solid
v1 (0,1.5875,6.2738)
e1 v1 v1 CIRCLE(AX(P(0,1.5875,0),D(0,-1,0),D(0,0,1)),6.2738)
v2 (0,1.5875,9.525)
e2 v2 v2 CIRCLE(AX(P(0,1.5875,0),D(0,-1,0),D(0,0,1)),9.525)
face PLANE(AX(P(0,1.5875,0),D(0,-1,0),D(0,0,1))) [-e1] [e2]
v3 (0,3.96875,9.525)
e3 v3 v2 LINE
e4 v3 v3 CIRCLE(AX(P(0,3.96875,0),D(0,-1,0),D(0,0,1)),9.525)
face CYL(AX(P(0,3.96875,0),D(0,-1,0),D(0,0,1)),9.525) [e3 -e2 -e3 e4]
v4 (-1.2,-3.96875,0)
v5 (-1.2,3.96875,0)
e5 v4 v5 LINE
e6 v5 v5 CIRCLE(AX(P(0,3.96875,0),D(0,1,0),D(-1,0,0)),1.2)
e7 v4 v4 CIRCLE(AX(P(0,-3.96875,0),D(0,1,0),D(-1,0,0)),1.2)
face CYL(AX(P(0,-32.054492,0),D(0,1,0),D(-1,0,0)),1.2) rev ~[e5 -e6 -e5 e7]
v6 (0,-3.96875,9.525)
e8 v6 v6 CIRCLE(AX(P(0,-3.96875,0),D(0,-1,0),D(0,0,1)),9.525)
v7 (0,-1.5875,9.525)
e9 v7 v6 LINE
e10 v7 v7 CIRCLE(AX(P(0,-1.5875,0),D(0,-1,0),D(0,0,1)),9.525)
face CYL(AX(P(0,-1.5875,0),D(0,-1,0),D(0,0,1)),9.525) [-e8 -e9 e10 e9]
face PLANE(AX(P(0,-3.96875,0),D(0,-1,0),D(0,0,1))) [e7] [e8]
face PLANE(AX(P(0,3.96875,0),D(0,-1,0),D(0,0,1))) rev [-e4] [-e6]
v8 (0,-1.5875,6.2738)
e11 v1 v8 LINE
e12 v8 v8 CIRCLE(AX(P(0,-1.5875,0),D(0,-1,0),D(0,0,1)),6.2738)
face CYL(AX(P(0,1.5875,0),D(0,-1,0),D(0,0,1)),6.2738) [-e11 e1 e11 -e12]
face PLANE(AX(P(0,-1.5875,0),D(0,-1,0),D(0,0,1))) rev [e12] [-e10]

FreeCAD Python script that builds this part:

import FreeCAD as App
import Part
import Sketcher
Q = App.Units.Quantity

doc = App.newDocument("Part")
body = doc.addObject("PartDesign::Body", "Body")

sketch1 = body.newObject("Sketcher::SketchObject", "Sketch")
sketch1.AttachmentSupport = (doc.getObject("YZ_Plane"), [""])
sketch1.MapMode = "FlatFace"
sketch1.addGeometry(Part.LineSegment(App.Vector(-4, 0, 0), App.Vector(4, 0, 0)), False)
sketch1.addGeometry(Part.LineSegment(App.Vector(4, 0, 0), App.Vector(4, 9.5, 0)), False)
sketch1.addGeometry(Part.LineSegment(App.Vector(4, 9.5, 0), App.Vector(1.6, 9.5, 0)), False)
sketch1.addGeometry(Part.LineSegment(App.Vector(1.6, 9.5, 0), App.Vector(1.6, 6.3, 0)), False)
sketch1.addGeometry(Part.LineSegment(App.Vector(1.6, 6.3, 0), App.Vector(-1.6, 6.3, 0)), False)
sketch1.addGeometry(Part.LineSegment(App.Vector(-1.6, 6.3, 0), App.Vector(-1.6, 9.5, 0)), False)
sketch1.addGeometry(Part.LineSegment(App.Vector(-1.6, 9.5, 0), App.Vector(-4, 9.5, 0)), False)
sketch1.addGeometry(Part.LineSegment(App.Vector(-4, 9.5, 0), App.Vector(-4, 0, 0)), False)
sketch1.addConstraint(Sketcher.Constraint("Coincident", 0, 2, 1, 1))
sketch1.addConstraint(Sketcher.Constraint("Coincident", 1, 2, 2, 1))
sketch1.addConstraint(Sketcher.Constraint("Coincident", 2, 2, 3, 1))
sketch1.addConstraint(Sketcher.Constraint("Coincident", 3, 2, 4, 1))
sketch1.addConstraint(Sketcher.Constraint("Coincident", 4, 2, 5, 1))
sketch1.addConstraint(Sketcher.Constraint("Coincident", 5, 2, 6, 1))
sketch1.addConstraint(Sketcher.Constraint("Coincident", 6, 2, 7, 1))
sketch1.addConstraint(Sketcher.Constraint("Coincident", 7, 2, 0, 1))
sketch1.addConstraint(Sketcher.Constraint("Horizontal", 0))
sketch1.addConstraint(Sketcher.Constraint("Vertical", 1))
sketch1.addConstraint(Sketcher.Constraint("Horizontal", 2))
sketch1.addConstraint(Sketcher.Constraint("Vertical", 3))
sketch1.addConstraint(Sketcher.Constraint("Horizontal", 4))
sketch1.addConstraint(Sketcher.Constraint("Vertical", 5))
sketch1.addConstraint(Sketcher.Constraint("Horizontal", 6))
sketch1.addConstraint(Sketcher.Constraint("Vertical", 7))
sketch1.addConstraint(Sketcher.Constraint("Symmetric", 0, 2, 7, 2, -1, 1))
sketch1.addConstraint(Sketcher.Constraint("Symmetric", 2, 2, 5, 2, -2))
sketch1.addConstraint(Sketcher.Constraint("DistanceX", 0, 1, 0, 2, Q("0.3125 in")))
sketch1.addConstraint(Sketcher.Constraint("DistanceX", 2, 2, 2, 1, Q("0.09375 in")))
sketch1.addConstraint(Sketcher.Constraint("DistanceY", 1, 1, 1, 2, Q("0.375 in")))
sketch1.addConstraint(Sketcher.Constraint("DistanceY", 3, 2, 3, 1, Q("0.128 in")))
revolution = body.newObject("PartDesign::Revolution", "Revolution")
revolution.Profile = sketch1
revolution.ReferenceAxis = (sketch1, ["H_Axis"])
revolution.Angle = 360

sketch2 = body.newObject("Sketcher::SketchObject", "Sketch001")
sketch2.AttachmentSupport = (doc.getObject("XZ_Plane"), [""])
sketch2.MapMode = "FlatFace"
sketch2.AttachmentOffset = App.Placement(App.Vector(0, 0, 0.15625 * 25.4), App.Rotation())
sketch2.addGeometry(Part.Circle(App.Vector(0, 0, 0), App.Vector(0, 0, 1), 1.2), False)
sketch2.addConstraint(Sketcher.Constraint("Coincident", 0, 3, -1, 1))
sketch2.addConstraint(Sketcher.Constraint("Diameter", 0, Q("2.4 mm")))
doc.recompute()
hole = body.newObject("PartDesign::Hole", "Hole")
hole.Profile = sketch2
hole.ThreadType = "None"
hole.Diameter = 2.4
hole.DepthType = "ThroughAll"

doc.recompute()
